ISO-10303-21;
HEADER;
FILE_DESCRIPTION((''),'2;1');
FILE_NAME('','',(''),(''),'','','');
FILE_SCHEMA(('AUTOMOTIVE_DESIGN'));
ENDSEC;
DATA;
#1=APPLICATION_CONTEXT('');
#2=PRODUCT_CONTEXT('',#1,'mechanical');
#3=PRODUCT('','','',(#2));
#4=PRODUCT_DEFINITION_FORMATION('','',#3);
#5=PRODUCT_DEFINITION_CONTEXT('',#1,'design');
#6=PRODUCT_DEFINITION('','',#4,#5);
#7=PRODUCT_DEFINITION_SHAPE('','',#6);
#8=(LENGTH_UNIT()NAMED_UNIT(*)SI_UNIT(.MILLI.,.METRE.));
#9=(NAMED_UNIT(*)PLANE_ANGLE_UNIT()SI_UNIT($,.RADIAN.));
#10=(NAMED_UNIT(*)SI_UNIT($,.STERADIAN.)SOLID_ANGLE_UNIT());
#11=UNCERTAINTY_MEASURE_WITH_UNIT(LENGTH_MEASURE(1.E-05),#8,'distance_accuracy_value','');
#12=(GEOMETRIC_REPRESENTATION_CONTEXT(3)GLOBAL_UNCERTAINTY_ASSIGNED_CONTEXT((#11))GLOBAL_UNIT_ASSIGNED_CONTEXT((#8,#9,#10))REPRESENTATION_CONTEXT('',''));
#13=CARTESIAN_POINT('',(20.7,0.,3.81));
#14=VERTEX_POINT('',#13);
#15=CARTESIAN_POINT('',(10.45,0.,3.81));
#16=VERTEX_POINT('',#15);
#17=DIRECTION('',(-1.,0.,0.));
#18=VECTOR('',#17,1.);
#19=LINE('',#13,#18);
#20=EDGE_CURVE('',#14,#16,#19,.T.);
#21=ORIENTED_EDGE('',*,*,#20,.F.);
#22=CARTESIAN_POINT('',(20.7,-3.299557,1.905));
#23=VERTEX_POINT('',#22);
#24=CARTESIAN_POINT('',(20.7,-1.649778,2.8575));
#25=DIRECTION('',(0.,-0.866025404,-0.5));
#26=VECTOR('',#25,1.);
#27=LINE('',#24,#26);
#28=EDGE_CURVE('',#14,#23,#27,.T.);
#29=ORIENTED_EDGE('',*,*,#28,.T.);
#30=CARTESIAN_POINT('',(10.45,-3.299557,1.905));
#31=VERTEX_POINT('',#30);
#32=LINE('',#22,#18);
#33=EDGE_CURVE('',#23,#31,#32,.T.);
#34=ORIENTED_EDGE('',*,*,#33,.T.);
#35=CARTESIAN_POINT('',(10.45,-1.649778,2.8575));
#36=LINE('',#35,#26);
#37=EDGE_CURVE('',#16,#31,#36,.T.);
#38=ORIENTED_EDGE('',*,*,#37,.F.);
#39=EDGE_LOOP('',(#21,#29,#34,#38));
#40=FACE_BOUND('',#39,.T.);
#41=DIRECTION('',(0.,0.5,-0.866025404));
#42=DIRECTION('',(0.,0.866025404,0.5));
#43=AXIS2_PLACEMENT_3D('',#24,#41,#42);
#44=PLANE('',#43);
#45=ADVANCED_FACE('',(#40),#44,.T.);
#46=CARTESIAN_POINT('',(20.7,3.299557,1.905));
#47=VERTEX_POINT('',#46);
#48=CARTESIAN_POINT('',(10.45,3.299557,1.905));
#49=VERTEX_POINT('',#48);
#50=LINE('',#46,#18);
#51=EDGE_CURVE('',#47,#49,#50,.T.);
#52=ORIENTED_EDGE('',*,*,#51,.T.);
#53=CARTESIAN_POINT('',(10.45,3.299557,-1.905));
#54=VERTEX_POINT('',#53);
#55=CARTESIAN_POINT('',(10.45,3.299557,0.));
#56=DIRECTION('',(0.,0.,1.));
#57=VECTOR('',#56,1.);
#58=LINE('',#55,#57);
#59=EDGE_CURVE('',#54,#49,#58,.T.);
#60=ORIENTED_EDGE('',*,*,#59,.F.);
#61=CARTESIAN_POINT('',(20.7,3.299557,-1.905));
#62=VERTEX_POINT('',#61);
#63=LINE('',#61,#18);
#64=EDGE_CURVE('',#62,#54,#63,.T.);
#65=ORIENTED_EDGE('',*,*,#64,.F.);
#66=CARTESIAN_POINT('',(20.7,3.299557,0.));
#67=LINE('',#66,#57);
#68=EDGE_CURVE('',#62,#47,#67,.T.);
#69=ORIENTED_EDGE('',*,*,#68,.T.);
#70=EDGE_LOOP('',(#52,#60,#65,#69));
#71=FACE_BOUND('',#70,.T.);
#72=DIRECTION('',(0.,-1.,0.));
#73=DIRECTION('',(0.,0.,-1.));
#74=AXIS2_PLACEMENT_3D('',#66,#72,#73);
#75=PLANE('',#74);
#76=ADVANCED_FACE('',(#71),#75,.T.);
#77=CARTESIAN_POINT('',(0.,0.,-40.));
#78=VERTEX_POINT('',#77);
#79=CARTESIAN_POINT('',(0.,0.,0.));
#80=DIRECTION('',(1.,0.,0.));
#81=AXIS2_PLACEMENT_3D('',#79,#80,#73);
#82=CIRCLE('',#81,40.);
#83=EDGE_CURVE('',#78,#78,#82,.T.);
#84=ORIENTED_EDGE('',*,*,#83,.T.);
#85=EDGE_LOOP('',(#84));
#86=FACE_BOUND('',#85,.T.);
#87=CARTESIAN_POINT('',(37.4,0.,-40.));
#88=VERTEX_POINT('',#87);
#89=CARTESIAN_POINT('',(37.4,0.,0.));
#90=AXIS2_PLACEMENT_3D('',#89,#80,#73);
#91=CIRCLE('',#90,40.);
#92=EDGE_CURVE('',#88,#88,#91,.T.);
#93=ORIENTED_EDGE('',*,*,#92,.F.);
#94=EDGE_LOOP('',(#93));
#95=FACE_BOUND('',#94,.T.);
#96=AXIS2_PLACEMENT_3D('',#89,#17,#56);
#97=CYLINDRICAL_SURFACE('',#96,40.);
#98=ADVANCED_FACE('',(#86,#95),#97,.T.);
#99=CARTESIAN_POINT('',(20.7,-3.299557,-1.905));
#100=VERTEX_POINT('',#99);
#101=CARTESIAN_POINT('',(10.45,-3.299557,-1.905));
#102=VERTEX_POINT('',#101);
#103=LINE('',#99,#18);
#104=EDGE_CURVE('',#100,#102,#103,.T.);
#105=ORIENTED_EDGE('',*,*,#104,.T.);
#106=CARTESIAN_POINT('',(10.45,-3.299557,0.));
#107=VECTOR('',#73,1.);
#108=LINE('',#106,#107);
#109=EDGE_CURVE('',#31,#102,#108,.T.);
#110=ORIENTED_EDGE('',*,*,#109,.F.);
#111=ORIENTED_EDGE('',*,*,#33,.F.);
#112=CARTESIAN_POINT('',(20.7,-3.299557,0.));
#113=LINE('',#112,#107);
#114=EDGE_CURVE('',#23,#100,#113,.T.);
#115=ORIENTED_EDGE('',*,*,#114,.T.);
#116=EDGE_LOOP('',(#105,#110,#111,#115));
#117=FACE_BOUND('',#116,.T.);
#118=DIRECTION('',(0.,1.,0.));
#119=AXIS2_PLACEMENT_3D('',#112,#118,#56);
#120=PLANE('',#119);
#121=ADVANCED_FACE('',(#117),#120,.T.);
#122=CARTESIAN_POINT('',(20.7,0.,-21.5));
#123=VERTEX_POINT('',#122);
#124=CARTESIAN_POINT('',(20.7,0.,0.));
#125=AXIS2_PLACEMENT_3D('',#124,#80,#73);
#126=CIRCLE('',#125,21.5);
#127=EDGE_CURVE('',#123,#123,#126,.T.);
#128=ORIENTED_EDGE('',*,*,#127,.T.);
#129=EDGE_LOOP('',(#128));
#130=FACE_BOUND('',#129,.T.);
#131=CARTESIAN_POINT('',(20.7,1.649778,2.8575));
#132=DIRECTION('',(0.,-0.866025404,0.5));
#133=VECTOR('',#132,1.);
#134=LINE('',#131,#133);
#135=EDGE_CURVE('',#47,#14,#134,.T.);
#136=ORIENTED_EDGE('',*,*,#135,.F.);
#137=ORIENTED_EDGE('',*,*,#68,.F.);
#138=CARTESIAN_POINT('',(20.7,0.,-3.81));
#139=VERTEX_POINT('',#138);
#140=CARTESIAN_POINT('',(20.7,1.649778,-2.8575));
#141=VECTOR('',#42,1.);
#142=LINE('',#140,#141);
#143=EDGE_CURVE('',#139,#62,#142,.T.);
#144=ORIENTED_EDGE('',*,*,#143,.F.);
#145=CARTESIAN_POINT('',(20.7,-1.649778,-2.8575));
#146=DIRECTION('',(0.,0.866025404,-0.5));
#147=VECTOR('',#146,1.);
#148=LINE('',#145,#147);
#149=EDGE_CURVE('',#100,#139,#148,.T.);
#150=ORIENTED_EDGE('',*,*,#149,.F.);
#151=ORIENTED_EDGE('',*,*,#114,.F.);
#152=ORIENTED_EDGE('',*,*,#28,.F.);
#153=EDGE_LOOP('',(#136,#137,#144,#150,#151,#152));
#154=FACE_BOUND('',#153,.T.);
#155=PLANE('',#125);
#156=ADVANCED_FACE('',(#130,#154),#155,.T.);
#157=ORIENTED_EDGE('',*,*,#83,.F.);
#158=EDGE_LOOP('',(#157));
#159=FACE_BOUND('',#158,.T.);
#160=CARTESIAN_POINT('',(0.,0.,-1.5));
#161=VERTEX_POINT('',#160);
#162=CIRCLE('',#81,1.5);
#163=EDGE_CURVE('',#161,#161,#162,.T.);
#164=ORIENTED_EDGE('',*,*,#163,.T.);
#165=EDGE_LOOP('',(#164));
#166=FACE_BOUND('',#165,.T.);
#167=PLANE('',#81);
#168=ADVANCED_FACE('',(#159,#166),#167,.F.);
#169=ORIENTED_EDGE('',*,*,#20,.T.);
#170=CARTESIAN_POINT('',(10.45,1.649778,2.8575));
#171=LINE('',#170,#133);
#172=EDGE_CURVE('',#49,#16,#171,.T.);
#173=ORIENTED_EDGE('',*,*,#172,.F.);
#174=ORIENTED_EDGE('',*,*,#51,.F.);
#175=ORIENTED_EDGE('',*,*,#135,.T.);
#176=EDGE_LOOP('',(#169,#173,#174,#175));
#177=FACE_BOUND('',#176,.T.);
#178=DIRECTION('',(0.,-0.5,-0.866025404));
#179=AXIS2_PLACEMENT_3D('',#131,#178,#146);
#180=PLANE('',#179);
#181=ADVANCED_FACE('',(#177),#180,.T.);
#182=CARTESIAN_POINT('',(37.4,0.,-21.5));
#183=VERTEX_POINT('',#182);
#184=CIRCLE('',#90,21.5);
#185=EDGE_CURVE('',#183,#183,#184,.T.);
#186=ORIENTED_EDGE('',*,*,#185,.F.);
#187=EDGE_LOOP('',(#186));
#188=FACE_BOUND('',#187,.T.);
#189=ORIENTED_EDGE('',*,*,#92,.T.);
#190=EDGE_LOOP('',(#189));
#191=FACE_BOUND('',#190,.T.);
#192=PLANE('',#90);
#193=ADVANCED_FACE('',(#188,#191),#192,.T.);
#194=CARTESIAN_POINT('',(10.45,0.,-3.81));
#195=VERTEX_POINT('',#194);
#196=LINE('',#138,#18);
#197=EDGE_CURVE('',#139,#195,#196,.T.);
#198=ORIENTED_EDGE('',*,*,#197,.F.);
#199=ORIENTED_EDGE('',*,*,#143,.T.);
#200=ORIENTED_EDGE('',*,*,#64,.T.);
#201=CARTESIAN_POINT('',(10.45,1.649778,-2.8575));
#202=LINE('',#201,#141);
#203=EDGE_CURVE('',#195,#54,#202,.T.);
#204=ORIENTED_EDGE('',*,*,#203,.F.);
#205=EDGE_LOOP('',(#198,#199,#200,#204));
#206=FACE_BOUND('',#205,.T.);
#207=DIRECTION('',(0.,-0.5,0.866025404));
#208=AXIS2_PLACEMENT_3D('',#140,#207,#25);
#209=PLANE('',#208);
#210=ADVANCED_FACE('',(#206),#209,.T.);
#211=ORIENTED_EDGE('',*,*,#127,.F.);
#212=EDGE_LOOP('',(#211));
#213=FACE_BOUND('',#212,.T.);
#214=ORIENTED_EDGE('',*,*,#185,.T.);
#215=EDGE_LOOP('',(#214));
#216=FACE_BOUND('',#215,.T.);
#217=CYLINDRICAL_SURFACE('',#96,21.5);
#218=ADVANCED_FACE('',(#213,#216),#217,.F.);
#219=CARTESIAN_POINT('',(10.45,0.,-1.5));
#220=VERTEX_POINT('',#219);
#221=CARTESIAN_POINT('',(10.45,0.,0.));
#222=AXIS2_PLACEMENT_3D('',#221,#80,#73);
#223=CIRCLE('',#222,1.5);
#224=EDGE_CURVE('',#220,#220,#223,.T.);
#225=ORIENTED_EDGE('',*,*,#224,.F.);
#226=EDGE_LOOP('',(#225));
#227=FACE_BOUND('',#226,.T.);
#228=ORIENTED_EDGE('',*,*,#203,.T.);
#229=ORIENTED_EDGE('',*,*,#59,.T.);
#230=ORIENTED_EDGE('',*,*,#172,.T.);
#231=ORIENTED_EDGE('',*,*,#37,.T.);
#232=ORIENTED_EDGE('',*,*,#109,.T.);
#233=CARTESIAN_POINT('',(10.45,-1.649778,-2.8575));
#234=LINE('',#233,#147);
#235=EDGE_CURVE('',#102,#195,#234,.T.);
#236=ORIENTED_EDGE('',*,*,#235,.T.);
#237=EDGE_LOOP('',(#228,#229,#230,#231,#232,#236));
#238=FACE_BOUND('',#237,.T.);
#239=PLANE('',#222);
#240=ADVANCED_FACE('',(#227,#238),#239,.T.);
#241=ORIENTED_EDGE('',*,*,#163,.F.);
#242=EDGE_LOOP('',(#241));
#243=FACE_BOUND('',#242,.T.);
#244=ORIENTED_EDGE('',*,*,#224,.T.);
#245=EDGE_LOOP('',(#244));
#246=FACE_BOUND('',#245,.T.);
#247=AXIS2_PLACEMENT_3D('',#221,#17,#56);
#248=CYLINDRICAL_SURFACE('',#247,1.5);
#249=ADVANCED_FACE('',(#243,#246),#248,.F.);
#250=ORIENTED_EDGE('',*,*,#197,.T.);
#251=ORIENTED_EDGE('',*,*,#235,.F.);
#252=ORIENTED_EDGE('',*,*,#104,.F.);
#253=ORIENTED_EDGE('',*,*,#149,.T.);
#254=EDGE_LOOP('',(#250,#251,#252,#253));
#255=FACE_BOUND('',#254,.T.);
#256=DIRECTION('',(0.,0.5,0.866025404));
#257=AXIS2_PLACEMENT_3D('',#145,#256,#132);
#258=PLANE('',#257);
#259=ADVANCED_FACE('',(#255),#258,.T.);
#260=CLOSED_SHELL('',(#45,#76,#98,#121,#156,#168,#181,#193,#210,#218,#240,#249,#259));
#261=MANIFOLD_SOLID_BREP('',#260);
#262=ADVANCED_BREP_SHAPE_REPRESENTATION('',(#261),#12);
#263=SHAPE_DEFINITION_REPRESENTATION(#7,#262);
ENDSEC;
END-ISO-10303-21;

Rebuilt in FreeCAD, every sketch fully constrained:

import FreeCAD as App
import Part
import Sketcher

V = App.Vector
Q = App.Units.Quantity


def add_polygon(sketch, points):
    """Adds a closed chain of lines whose ends are joined by coincident constraints."""
    first, n = sketch.GeometryCount, len(points)
    for a, b in zip(points, points[1:] + points[:1]):
        sketch.addGeometry(Part.LineSegment(App.Vector(*a, 0), App.Vector(*b, 0)), False)
    for i in range(n):
        sketch.addConstraint(Sketcher.Constraint("Coincident", first + i, 2, first + (i + 1) % n, 1))

doc = App.newDocument("Part")
body = doc.addObject("PartDesign::Body", "Body")

sketch1 = body.newObject("Sketcher::SketchObject", "Sketch")
sketch1.AttachmentSupport = (doc.getObject("YZ_Plane"), [""])
sketch1.MapMode = "FlatFace"
sketch1.addGeometry([
    Part.Circle(V(0, 0, 0), V(0, 0, 1), 40),
    Part.Circle(V(0, 0, 0), V(0, 0, 1), 21.5),
], False)
sketch1.addConstraint([
    Sketcher.Constraint("Coincident", 0, 3, -1, 1),
    Sketcher.Constraint("Coincident", 1, 3, -1, 1),
    Sketcher.Constraint("Diameter", 0, Q("80 mm")),
    Sketcher.Constraint("Diameter", 1, Q("43 mm")),
])
pad1 = body.newObject("PartDesign::Pad", "Pad")
pad1.Profile = sketch1
pad1.Length = 37.4

sketch2 = body.newObject("Sketcher::SketchObject", "Sketch001")
sketch2.AttachmentSupport = (doc.getObject("YZ_Plane"), [""])
sketch2.MapMode = "FlatFace"
sketch2.addGeometry(Part.Circle(V(0, 0, 0), V(0, 0, 1), 21.5), False)
add_polygon(sketch2, [(0, -3.81), (-3.299557, -1.905), (-3.299557, 1.905), (0, 3.81), (3.299557, 1.905), (3.299557, -1.905)])
sketch2.addConstraint([
    Sketcher.Constraint("Vertical", 2),
    Sketcher.Constraint("Vertical", 5),
    Sketcher.Constraint("Coincident", 0, 3, -1, 1),
    Sketcher.Constraint("Symmetric", 1, 2, 4, 2, -1, 1),
    Sketcher.Constraint("Symmetric", 3, 2, 6, 2, -1, 1),
    Sketcher.Constraint("PointOnObject", 3, 2, -2),
    Sketcher.Constraint("Parallel", 3, 6),
    Sketcher.Constraint("Horizontal", 2, 2, 4, 2),
    Sketcher.Constraint("Diameter", 0, Q("43 mm")),
    Sketcher.Constraint("Angle", 1, Q("150 deg")),
    Sketcher.Constraint("DistanceY", 2, 1, 2, 2, Q("3.81 mm")),
    Sketcher.Constraint("Distance", 1, Q("3.81 mm")),
])
pad2 = body.newObject("PartDesign::Pad", "Pad001")
pad2.Profile = sketch2
pad2.Length = 20.7

sketch3 = body.newObject("Sketcher::SketchObject", "Sketch002")
sketch3.AttachmentSupport = (doc.getObject("YZ_Plane"), [""])
sketch3.MapMode = "FlatFace"
add_polygon(sketch3, [(-3.299557, 1.905), (-3.299557, -1.905), (0, -3.81), (3.299557, -1.905), (3.299557, 1.905), (0, 3.81)])
sketch3.addGeometry(Part.Circle(V(0, 0, 0), V(0, 0, 1), 1.5), False)
sketch3.addConstraint([
    Sketcher.Constraint("Vertical", 0),
    Sketcher.Constraint("Vertical", 3),
    Sketcher.Constraint("Coincident", 6, 3, -1, 1),
    Sketcher.Constraint("Symmetric", 0, 2, 3, 2, -1, 1),
    Sketcher.Constraint("Symmetric", 1, 2, 4, 2, -1, 1),
    Sketcher.Constraint("PointOnObject", 1, 2, -2),
    Sketcher.Constraint("Parallel", 2, 5),
    Sketcher.Constraint("Horizontal", 0, 2, 2, 2),
    Sketcher.Constraint("Diameter", 6, Q("3 mm")),
    Sketcher.Constraint("Angle", 1, Q("-30 deg")),
    Sketcher.Constraint("DistanceY", 0, 2, 0, 1, Q("3.81 mm")),
    Sketcher.Constraint("Distance", 1, Q("3.81 mm")),
])
pad3 = body.newObject("PartDesign::Pad", "Pad002")
pad3.Profile = sketch3
pad3.Length = 10.45

doc.recompute()
